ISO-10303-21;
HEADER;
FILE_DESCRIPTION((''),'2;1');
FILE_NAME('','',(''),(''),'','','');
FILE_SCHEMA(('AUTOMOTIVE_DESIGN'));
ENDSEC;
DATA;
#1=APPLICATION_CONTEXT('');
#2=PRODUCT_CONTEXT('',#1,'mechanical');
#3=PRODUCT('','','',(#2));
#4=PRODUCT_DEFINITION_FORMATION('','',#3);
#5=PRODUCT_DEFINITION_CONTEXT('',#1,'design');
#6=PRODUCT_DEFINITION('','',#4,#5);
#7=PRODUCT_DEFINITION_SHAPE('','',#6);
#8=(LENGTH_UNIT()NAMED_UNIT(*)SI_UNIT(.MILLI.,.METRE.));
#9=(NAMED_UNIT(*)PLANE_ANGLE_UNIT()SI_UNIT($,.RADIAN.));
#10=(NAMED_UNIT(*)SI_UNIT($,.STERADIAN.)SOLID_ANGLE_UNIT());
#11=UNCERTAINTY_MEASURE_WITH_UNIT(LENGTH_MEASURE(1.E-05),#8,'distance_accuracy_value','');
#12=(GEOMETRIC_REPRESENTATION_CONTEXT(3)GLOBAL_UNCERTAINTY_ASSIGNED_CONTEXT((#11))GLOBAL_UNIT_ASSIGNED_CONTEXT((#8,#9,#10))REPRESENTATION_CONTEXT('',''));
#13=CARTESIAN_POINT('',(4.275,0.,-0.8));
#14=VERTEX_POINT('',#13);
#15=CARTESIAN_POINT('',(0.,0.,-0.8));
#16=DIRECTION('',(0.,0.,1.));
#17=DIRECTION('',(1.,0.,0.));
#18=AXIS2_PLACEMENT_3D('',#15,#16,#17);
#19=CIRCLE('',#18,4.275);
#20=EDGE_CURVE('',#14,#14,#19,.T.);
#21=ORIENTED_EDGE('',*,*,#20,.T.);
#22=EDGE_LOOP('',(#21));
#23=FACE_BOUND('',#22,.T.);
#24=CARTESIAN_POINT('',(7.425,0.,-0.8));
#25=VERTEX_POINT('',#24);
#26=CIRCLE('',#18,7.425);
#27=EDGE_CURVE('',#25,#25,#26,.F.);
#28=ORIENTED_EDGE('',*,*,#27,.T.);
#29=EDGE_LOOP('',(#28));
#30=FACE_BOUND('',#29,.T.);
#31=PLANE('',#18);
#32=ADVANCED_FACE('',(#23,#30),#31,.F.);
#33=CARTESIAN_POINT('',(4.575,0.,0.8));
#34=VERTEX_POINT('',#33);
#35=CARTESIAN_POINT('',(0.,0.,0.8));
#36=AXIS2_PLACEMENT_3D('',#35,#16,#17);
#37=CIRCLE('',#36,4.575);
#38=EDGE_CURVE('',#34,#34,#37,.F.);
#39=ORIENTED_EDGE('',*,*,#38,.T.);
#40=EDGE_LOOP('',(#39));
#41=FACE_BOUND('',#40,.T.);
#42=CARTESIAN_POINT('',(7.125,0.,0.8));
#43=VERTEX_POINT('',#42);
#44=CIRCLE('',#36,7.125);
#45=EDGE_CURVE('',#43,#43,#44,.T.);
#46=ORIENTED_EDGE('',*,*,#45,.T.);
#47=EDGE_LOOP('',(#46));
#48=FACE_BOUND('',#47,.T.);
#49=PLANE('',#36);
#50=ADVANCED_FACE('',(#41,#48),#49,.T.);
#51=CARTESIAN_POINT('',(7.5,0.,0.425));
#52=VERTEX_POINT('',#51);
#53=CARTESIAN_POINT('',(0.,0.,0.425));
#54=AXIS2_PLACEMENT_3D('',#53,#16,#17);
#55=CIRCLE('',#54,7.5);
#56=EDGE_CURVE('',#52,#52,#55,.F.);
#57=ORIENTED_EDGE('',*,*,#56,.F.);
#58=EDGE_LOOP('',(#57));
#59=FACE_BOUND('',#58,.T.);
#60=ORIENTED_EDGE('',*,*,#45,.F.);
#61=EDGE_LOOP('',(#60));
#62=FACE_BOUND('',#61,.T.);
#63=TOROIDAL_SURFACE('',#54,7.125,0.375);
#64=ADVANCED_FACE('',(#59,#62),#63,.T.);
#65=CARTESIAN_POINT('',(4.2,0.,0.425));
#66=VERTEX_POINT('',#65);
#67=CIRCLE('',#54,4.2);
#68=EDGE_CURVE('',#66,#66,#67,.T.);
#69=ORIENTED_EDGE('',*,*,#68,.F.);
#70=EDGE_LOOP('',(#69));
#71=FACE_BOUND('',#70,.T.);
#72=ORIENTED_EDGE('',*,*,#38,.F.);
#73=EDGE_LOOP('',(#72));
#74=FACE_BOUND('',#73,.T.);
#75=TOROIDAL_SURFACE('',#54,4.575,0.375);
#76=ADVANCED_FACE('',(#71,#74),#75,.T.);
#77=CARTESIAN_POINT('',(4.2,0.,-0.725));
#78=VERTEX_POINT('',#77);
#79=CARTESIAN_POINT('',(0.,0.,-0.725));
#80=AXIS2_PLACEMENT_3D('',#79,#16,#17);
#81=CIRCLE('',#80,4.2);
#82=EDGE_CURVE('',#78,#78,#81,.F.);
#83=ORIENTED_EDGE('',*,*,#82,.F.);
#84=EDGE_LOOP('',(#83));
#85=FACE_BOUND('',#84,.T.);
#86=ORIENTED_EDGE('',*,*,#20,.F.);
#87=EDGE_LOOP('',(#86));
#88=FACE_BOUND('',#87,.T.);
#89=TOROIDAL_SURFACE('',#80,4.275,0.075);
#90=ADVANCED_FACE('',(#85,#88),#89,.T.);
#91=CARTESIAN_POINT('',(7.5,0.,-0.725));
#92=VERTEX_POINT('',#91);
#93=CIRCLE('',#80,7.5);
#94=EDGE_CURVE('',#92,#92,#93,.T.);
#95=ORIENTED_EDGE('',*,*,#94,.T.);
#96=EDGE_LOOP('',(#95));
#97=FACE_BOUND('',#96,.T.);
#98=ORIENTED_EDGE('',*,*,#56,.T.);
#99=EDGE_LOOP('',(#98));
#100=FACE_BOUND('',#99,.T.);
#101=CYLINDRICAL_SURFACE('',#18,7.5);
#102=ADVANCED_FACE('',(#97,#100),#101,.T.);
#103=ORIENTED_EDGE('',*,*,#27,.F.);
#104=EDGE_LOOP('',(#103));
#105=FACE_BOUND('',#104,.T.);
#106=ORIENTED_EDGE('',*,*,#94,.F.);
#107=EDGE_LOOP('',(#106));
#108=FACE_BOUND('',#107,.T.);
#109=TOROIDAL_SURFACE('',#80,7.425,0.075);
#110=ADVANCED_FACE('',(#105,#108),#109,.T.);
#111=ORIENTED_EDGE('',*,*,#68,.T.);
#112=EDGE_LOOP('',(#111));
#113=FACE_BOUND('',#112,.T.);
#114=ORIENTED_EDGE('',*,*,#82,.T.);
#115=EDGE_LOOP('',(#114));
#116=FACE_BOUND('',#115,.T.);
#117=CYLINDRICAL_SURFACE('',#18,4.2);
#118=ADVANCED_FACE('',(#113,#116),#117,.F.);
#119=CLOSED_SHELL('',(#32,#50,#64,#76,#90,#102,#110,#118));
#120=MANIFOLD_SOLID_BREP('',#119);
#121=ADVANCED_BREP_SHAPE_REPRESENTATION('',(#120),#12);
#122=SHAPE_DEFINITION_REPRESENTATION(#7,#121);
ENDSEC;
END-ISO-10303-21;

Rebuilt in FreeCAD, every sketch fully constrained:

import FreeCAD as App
import Part
import Sketcher

V = App.Vector
Q = App.Units.Quantity


def edges_at(feature, points):
    """Names of the edges that pass closest to the given points."""
    edges = feature.Shape.Edges
    near = lambda p: min(range(len(edges)), key=lambda i: edges[i].distToShape(Part.Vertex(*p))[0])
    return sorted({f"Edge{near(p) + 1}" for p in points})

doc = App.newDocument("Part")
body = doc.addObject("PartDesign::Body", "Body")

# Sketch on XY plane
sketch1 = body.newObject("Sketcher::SketchObject", "Sketch")
sketch1.AttachmentSupport = (doc.getObject("XY_Plane"), [""])
sketch1.MapMode = "FlatFace"
sketch1.addGeometry([
    Part.Circle(V(0, 0, 0), V(0, 0, 1), 7.5),
    Part.Circle(V(0, 0, 0), V(0, 0, 1), 4.2),
], False)
sketch1.addConstraint([
    Sketcher.Constraint("Coincident", 0, 3, -1, 1),
    Sketcher.Constraint("Coincident", 1, 3, -1, 1),
    Sketcher.Constraint("Diameter", 0, Q("15 mm")),
    Sketcher.Constraint("Diameter", 1, Q("8.4 mm")),
])
pad1 = body.newObject("PartDesign::Pad", "Pad")
pad1.Profile = sketch1
pad1.Type = "TwoLengths"
pad1.Length = 0.8
pad1.Length2 = 0.8
doc.recompute()

fillet = body.newObject("PartDesign::Fillet", "Fillet")
fillet.Base = (pad1, edges_at(pad1, [(-7.5, 0, 0.8), (-4.2, 0, 0.8)]))
fillet.Radius = 0.375
doc.recompute()

fillet2 = body.newObject("PartDesign::Fillet", "Fillet001")
fillet2.Base = (fillet, edges_at(fillet, [(-7.5, 0, -0.8), (-4.2, 0, -0.8)]))
fillet2.Radius = 0.075

doc.recompute()
